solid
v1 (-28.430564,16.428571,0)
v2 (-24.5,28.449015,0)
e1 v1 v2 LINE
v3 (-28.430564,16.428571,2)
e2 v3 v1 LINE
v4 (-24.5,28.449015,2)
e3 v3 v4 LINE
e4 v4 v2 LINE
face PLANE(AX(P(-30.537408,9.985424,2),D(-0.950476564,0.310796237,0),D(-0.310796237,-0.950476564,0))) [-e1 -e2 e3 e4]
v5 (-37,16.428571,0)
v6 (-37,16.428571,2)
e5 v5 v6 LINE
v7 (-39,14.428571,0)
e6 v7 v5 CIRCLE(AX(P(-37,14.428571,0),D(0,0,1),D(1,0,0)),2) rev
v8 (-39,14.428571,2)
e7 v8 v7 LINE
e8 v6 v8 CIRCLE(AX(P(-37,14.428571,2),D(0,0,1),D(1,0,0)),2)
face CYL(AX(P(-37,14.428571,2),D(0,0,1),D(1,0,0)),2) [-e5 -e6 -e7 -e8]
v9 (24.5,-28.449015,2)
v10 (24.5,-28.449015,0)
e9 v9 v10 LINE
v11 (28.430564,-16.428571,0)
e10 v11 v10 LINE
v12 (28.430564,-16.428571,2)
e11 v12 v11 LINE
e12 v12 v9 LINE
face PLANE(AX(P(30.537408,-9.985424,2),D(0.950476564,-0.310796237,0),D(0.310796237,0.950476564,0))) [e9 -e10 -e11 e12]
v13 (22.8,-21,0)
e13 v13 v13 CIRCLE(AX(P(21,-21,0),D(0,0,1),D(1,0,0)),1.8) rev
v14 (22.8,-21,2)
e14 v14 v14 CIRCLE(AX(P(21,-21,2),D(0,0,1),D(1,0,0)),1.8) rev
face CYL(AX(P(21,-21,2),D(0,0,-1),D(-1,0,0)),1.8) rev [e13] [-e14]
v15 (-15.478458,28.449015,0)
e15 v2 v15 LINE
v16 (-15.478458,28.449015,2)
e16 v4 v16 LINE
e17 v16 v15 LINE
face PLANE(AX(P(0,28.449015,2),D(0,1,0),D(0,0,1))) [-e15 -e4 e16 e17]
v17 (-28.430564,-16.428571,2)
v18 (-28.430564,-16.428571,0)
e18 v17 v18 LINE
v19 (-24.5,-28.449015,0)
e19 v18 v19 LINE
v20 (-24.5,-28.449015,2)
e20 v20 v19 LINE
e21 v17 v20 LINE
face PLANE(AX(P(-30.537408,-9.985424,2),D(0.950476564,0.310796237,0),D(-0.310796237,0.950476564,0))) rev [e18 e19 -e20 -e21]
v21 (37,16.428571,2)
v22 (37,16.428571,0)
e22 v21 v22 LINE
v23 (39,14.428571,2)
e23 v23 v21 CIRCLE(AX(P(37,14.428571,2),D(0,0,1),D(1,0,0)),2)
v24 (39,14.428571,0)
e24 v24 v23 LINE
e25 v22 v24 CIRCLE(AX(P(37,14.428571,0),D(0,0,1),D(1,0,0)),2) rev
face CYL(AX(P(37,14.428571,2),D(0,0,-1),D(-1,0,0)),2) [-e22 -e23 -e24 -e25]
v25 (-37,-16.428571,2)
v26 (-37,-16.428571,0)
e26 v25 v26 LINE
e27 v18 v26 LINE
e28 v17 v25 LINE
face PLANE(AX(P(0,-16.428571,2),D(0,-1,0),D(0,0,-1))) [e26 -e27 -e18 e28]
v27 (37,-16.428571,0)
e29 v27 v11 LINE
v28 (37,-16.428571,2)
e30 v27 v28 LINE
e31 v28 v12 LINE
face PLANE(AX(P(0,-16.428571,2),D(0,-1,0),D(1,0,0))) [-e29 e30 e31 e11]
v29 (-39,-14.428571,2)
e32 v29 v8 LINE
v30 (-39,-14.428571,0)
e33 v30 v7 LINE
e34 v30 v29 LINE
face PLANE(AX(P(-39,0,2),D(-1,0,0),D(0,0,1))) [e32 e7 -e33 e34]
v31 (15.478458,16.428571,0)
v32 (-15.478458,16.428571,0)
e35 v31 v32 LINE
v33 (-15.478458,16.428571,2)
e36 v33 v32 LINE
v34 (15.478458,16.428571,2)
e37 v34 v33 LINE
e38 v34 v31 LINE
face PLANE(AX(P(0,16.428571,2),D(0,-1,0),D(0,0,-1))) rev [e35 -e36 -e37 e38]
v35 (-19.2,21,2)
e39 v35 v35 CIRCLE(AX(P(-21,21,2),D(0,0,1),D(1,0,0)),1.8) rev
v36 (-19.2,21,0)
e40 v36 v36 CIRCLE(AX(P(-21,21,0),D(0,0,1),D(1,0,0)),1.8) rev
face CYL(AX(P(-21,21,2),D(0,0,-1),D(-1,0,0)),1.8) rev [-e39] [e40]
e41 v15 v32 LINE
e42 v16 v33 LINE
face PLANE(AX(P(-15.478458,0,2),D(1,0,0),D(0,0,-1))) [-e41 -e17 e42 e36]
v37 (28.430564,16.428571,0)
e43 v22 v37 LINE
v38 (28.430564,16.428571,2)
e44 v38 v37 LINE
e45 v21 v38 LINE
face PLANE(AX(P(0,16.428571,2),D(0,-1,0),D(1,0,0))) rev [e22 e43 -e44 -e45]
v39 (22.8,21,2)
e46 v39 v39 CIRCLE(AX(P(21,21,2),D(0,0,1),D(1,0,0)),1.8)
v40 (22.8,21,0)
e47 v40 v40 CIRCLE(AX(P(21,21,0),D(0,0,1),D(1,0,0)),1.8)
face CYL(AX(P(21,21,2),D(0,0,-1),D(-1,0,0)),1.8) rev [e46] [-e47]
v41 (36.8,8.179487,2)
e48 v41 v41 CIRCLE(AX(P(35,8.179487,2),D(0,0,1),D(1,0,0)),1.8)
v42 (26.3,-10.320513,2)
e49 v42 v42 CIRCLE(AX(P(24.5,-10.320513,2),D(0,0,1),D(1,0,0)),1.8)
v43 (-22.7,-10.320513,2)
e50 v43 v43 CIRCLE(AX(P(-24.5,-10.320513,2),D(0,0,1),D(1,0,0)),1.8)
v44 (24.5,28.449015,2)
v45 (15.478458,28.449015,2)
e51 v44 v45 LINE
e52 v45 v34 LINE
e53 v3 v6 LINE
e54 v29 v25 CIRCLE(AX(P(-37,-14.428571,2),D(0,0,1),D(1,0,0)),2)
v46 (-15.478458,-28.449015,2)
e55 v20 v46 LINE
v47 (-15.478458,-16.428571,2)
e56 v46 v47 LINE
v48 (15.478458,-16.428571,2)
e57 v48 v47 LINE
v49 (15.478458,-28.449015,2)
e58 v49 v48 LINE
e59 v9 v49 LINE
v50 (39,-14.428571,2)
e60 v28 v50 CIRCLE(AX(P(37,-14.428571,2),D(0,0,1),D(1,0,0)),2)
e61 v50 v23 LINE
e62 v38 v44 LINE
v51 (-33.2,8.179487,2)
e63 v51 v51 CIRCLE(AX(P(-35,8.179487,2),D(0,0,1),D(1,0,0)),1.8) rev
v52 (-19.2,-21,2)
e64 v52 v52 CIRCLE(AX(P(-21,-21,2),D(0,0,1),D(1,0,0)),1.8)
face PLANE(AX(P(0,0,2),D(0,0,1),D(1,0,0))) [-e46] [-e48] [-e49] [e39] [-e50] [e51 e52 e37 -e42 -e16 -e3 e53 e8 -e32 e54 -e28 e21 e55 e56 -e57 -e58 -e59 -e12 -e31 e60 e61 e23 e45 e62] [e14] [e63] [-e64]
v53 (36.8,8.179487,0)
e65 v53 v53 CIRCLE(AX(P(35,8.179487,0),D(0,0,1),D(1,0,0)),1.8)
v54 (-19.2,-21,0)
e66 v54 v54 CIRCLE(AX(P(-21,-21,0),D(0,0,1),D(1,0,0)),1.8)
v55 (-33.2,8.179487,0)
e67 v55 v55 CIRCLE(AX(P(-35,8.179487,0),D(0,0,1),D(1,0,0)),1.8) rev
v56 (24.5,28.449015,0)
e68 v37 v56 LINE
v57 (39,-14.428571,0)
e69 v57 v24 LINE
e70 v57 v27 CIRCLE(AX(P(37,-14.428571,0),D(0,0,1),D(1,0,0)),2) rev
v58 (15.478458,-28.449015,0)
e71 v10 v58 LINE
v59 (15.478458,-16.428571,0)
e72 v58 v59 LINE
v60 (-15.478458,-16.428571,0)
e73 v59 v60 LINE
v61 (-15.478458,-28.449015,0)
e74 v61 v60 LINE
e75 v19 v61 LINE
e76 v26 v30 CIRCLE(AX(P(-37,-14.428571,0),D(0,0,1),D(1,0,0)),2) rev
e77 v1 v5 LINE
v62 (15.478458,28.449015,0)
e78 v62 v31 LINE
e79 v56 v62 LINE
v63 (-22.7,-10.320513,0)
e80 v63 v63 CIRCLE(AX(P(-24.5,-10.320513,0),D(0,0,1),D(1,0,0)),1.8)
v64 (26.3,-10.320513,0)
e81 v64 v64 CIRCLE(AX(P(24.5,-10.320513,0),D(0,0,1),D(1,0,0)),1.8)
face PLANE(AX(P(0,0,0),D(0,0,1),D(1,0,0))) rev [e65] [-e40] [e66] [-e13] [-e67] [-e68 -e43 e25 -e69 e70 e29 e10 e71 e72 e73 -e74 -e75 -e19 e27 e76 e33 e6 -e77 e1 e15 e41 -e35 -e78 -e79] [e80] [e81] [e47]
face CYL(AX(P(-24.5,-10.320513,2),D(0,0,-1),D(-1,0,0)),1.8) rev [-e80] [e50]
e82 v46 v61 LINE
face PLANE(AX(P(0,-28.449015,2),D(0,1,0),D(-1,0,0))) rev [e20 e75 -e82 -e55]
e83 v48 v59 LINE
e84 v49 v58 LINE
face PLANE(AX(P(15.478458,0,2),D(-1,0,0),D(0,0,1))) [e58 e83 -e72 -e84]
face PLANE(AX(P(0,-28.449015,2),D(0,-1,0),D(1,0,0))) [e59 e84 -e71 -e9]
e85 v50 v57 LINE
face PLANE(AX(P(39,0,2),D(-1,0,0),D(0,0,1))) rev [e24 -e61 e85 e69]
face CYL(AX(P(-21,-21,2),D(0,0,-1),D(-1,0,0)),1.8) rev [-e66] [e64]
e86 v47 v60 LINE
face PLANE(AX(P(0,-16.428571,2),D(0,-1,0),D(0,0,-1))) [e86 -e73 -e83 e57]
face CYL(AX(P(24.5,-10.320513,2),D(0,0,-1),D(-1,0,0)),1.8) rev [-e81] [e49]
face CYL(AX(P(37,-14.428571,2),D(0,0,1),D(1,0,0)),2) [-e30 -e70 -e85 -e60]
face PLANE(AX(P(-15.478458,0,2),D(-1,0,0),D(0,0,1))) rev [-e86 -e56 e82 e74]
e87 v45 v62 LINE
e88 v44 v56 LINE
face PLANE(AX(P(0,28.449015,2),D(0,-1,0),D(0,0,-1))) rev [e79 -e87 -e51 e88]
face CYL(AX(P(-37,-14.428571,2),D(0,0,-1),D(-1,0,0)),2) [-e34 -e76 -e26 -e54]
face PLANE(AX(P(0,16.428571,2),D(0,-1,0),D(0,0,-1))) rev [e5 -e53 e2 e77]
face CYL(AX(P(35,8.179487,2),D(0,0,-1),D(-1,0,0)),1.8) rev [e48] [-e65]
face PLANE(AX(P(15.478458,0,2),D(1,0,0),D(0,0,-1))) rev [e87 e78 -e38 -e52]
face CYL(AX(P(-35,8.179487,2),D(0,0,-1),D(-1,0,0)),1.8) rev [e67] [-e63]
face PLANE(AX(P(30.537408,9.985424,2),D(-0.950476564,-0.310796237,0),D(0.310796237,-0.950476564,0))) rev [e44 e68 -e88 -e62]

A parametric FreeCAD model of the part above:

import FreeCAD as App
import Part
import Sketcher

V = App.Vector


def edges_at(feature, points):
    """Names of the edges that pass closest to the given points."""
    edges = feature.Shape.Edges
    near = lambda p: min(range(len(edges)), key=lambda i: edges[i].distToShape(Part.Vertex(*p))[0])
    return sorted({f"Edge{near(p) + 1}" for p in points})


def add_polygon(sketch, points):
    """Adds a closed chain of lines whose ends are joined by coincident constraints."""
    first, n = sketch.GeometryCount, len(points)
    for a, b in zip(points, points[1:] + points[:1]):
        sketch.addGeometry(Part.LineSegment(App.Vector(*a, 0), App.Vector(*b, 0)), False)
    for i in range(n):
        sketch.addConstraint(Sketcher.Constraint("Coincident", first + i, 2, first + (i + 1) % n, 1))

doc = App.newDocument("Part")
body = doc.addObject("PartDesign::Body", "Body")

sketch1 = body.newObject("Sketcher::SketchObject", "Sketch")
sketch1.AttachmentSupport = (doc.getObject("XY_Plane"), [""])
sketch1.MapMode = "FlatFace"
add_polygon(sketch1, [(-15.478458, -16.428571), (15.478458, -16.428571), (15.478458, -28.449015), (24.5, -28.449015), (28.430564, -16.428571), (39, -16.428571), (39, 16.428571), (28.430564, 16.428571), (24.5, 28.449015), (15.478458, 28.449015), (15.478458, 16.428571), (-15.478458, 16.428571), (-15.478458, 28.449015), (-24.5, 28.449015), (-28.430564, 16.428571), (-39, 16.428571), (-39, -16.428571), (-28.430564, -16.428571), (-24.5, -28.449015), (-15.478458, -28.449015)])
sketch1.addGeometry(Part.Circle(V(21, -21, 0), V(0, 0, 1), 1.8), False)
sketch1.addGeometry(Part.Circle(V(24.5, -10.320513, 0), V(0, 0, 1), 1.8), False)
sketch1.addGeometry(Part.Circle(V(-21, -21, 0), V(0, 0, 1), 1.8), False)
sketch1.addGeometry(Part.Circle(V(-24.5, -10.320513, 0), V(0, 0, 1), 1.8), False)
sketch1.addGeometry(Part.Circle(V(35, 8.179487, 0), V(0, 0, 1), 1.8), False)
sketch1.addGeometry(Part.Circle(V(21, 21, 0), V(0, 0, 1), 1.8), False)
sketch1.addGeometry(Part.Circle(V(-35, 8.179487, 0), V(0, 0, 1), 1.8), False)
sketch1.addGeometry(Part.Circle(V(-21, 21, 0), V(0, 0, 1), 1.8), False)
sketch1.addConstraint(Sketcher.Constraint("Horizontal", 0))
sketch1.addConstraint(Sketcher.Constraint("Vertical", 1))
sketch1.addConstraint(Sketcher.Constraint("Horizontal", 2))
sketch1.addConstraint(Sketcher.Constraint("Horizontal", 4))
sketch1.addConstraint(Sketcher.Constraint("Vertical", 5))
sketch1.addConstraint(Sketcher.Constraint("Horizontal", 6))
sketch1.addConstraint(Sketcher.Constraint("Horizontal", 8))
sketch1.addConstraint(Sketcher.Constraint("Vertical", 9))
sketch1.addConstraint(Sketcher.Constraint("Horizontal", 10))
sketch1.addConstraint(Sketcher.Constraint("Vertical", 11))
sketch1.addConstraint(Sketcher.Constraint("Horizontal", 12))
sketch1.addConstraint(Sketcher.Constraint("Horizontal", 14))
sketch1.addConstraint(Sketcher.Constraint("Vertical", 15))
sketch1.addConstraint(Sketcher.Constraint("Horizontal", 16))
sketch1.addConstraint(Sketcher.Constraint("Horizontal", 18))
sketch1.addConstraint(Sketcher.Constraint("Vertical", 19))
sketch1.addConstraint(Sketcher.Constraint("Equal", 20, 21))
sketch1.addConstraint(Sketcher.Constraint("Equal", 21, 22))
sketch1.addConstraint(Sketcher.Constraint("Equal", 22, 23))
sketch1.addConstraint(Sketcher.Constraint("Equal", 23, 24))
sketch1.addConstraint(Sketcher.Constraint("Equal", 24, 25))
sketch1.addConstraint(Sketcher.Constraint("Equal", 25, 26))
sketch1.addConstraint(Sketcher.Constraint("Equal", 26, 27))
sketch1.addConstraint(Sketcher.Constraint("Symmetric", 22, 3, 25, 3, -1, 1))
sketch1.addConstraint(Sketcher.Constraint("Symmetric", 20, 3, 27, 3, -1, 1))
sketch1.addConstraint(Sketcher.Constraint("Symmetric", 0, 2, 10, 2, -1, 1))
sketch1.addConstraint(Sketcher.Constraint("Symmetric", 2, 2, 12, 2, -1, 1))
sketch1.addConstraint(Sketcher.Constraint("Symmetric", 3, 2, 13, 2, -1, 1))
sketch1.addConstraint(Sketcher.Constraint("Symmetric", 5, 2, 15, 2, -1, 1))
sketch1.addConstraint(Sketcher.Constraint("Symmetric", 7, 2, 17, 2, -1, 1))
sketch1.addConstraint(Sketcher.Constraint("Symmetric", 20, 3, 22, 3, -2))
sketch1.addConstraint(Sketcher.Constraint("Symmetric", 21, 3, 23, 3, -2))
sketch1.addConstraint(Sketcher.Constraint("Symmetric", 24, 3, 26, 3, -2))
sketch1.addConstraint(Sketcher.Constraint("Symmetric", 8, 2, 11, 2, -2))
sketch1.addConstraint(Sketcher.Constraint("Symmetric", 6, 2, 13, 2, -2))
sketch1.addConstraint(Sketcher.Constraint("Parallel", 7, 17))
sketch1.addConstraint(Sketcher.Constraint("Horizontal", 0, 2, 3, 2))
sketch1.addConstraint(Sketcher.Constraint("Vertical", 21, 3, 2, 2))
sketch1.addConstraint(Sketcher.Constraint("Vertical", 2, 2, 7, 2))
sketch1.addConstraint(Sketcher.Constraint("Vertical", 11, 2, 18, 2))
sketch1.addConstraint(Sketcher.Constraint("Diameter", 20, 3.6))
sketch1.addConstraint(Sketcher.Constraint("DistanceX", -1, 1, 20, 3, 21.0))
sketch1.addConstraint(Sketcher.Constraint("DistanceY", 20, 3, -1, 1, 21.0))
sketch1.addConstraint(Sketcher.Constraint("DistanceX", -1, 1, 24, 3, 35.0))
sketch1.addConstraint(Sketcher.Constraint("DistanceX", -1, 1, 4, 2, 39.0))
sketch1.addConstraint(Sketcher.Constraint("DistanceX", 23, 3, 21, 3, 49.0))
sketch1.addConstraint(Sketcher.Constraint("DistanceY", 21, 3, 24, 3, 18.5))
sketch1.addConstraint(Sketcher.Constraint("DistanceX", 0, 1, 0, 2, 30.956916))
sketch1.addConstraint(Sketcher.Constraint("DistanceX", 4, 1, 4, 2, 10.569436))
sketch1.addConstraint(Sketcher.Constraint("DistanceY", 1, 2, 1, 1, 12.020444))
sketch1.addConstraint(Sketcher.Constraint("DistanceY", 5, 1, 5, 2, 32.857143))
sketch1.addConstraint(Sketcher.Constraint("DistanceY", 0, 2, 21, 3, 6.108059))
pad1 = body.newObject("PartDesign::Pad", "Pad")
pad1.Profile = sketch1
pad1.Length = 2
doc.recompute()

fillet = body.newObject("PartDesign::Fillet", "Fillet")
fillet.Base = (pad1, edges_at(pad1, [
    (-39, -16.429, 1),
    (-39, 16.429, 1),
    (39, 16.429, 1),
    (39, -16.429, 1),
]))
fillet.Radius = 2

doc.recompute()
